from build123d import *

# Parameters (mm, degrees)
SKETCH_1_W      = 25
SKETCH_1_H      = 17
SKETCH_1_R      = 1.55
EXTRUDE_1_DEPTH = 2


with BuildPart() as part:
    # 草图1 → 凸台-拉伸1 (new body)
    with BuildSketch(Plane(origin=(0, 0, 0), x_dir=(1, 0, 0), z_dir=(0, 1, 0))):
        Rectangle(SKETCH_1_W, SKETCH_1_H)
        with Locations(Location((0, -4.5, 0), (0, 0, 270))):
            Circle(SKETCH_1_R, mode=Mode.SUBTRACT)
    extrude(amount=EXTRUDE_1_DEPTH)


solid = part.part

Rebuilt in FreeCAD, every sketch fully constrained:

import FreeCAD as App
import Part
import Sketcher

V = App.Vector

doc = App.newDocument("Part")
params = doc.addObject("Spreadsheet::Sheet", "Params")
for row, (alias, value) in enumerate([
    ("sketch1_diameter", "3.1 mm"),
    ("sketch1_width", "25 mm"),
    ("sketch1_height", "17 mm"),
    ("pad1_length", "2 mm"),
], start=1):
    params.set(f"A{row}", alias)
    params.set(f"B{row}", "=" + value)
    params.setAlias(f"B{row}", alias)

body = doc.addObject("PartDesign::Body", "Body")

# Sketch on XZ plane
sketch1 = body.newObject("Sketcher::SketchObject", "Sketch")
sketch1.AttachmentSupport = (doc.getObject("XZ_Plane"), [""])
sketch1.MapMode = "FlatFace"
sketch1.addGeometry(Part.LineSegment(V(-12.5, -8.5, 0), V(-12.5, 8.5, 0)), False)
sketch1.addGeometry(Part.LineSegment(V(-12.5, 8.5, 0), V(12.5, 8.5, 0)), False)
sketch1.addGeometry(Part.LineSegment(V(12.5, 8.5, 0), V(12.5, -8.5, 0)), False)
sketch1.addGeometry(Part.LineSegment(V(12.5, -8.5, 0), V(-12.5, -8.5, 0)), False)
sketch1.addGeometry(Part.Circle(V(0, 4.5, 0), V(0, 0, 1), 1.55), False)
sketch1.addConstraint(Sketcher.Constraint("Coincident", 0, 2, 1, 1))
sketch1.addConstraint(Sketcher.Constraint("Coincident", 1, 2, 2, 1))
sketch1.addConstraint(Sketcher.Constraint("Coincident", 2, 2, 3, 1))
sketch1.addConstraint(Sketcher.Constraint("Coincident", 3, 2, 0, 1))
sketch1.addConstraint(Sketcher.Constraint("Vertical", 0))
sketch1.addConstraint(Sketcher.Constraint("Horizontal", 1))
sketch1.addConstraint(Sketcher.Constraint("Vertical", 2))
sketch1.addConstraint(Sketcher.Constraint("Horizontal", 3))
sketch1.addConstraint(Sketcher.Constraint("Symmetric", 0, 2, 2, 2, -1, 1))
sketch1.addConstraint(Sketcher.Constraint("PointOnObject", 4, 3, -2))
sketch1.addConstraint(Sketcher.Constraint("Diameter", 4, 3.1))
sketch1.addConstraint(Sketcher.Constraint("DistanceX", 1, 1, 1, 2, 25.0))
sketch1.addConstraint(Sketcher.Constraint("DistanceY", 0, 1, 0, 2, 17.0))
sketch1.addConstraint(Sketcher.Constraint("DistanceY", 4, 3, 0, 2, 4.0))
sketch1.setExpression("Constraints[10]", "Params.sketch1_diameter")
sketch1.setExpression("Constraints[11]", "Params.sketch1_width")
sketch1.setExpression("Constraints[12]", "Params.sketch1_height")
pad1 = body.newObject("PartDesign::Pad", "Pad")
pad1.Profile = sketch1
pad1.setExpression("Length", "Params.pad1_length")
pad1.Reversed = True

doc.recompute()
